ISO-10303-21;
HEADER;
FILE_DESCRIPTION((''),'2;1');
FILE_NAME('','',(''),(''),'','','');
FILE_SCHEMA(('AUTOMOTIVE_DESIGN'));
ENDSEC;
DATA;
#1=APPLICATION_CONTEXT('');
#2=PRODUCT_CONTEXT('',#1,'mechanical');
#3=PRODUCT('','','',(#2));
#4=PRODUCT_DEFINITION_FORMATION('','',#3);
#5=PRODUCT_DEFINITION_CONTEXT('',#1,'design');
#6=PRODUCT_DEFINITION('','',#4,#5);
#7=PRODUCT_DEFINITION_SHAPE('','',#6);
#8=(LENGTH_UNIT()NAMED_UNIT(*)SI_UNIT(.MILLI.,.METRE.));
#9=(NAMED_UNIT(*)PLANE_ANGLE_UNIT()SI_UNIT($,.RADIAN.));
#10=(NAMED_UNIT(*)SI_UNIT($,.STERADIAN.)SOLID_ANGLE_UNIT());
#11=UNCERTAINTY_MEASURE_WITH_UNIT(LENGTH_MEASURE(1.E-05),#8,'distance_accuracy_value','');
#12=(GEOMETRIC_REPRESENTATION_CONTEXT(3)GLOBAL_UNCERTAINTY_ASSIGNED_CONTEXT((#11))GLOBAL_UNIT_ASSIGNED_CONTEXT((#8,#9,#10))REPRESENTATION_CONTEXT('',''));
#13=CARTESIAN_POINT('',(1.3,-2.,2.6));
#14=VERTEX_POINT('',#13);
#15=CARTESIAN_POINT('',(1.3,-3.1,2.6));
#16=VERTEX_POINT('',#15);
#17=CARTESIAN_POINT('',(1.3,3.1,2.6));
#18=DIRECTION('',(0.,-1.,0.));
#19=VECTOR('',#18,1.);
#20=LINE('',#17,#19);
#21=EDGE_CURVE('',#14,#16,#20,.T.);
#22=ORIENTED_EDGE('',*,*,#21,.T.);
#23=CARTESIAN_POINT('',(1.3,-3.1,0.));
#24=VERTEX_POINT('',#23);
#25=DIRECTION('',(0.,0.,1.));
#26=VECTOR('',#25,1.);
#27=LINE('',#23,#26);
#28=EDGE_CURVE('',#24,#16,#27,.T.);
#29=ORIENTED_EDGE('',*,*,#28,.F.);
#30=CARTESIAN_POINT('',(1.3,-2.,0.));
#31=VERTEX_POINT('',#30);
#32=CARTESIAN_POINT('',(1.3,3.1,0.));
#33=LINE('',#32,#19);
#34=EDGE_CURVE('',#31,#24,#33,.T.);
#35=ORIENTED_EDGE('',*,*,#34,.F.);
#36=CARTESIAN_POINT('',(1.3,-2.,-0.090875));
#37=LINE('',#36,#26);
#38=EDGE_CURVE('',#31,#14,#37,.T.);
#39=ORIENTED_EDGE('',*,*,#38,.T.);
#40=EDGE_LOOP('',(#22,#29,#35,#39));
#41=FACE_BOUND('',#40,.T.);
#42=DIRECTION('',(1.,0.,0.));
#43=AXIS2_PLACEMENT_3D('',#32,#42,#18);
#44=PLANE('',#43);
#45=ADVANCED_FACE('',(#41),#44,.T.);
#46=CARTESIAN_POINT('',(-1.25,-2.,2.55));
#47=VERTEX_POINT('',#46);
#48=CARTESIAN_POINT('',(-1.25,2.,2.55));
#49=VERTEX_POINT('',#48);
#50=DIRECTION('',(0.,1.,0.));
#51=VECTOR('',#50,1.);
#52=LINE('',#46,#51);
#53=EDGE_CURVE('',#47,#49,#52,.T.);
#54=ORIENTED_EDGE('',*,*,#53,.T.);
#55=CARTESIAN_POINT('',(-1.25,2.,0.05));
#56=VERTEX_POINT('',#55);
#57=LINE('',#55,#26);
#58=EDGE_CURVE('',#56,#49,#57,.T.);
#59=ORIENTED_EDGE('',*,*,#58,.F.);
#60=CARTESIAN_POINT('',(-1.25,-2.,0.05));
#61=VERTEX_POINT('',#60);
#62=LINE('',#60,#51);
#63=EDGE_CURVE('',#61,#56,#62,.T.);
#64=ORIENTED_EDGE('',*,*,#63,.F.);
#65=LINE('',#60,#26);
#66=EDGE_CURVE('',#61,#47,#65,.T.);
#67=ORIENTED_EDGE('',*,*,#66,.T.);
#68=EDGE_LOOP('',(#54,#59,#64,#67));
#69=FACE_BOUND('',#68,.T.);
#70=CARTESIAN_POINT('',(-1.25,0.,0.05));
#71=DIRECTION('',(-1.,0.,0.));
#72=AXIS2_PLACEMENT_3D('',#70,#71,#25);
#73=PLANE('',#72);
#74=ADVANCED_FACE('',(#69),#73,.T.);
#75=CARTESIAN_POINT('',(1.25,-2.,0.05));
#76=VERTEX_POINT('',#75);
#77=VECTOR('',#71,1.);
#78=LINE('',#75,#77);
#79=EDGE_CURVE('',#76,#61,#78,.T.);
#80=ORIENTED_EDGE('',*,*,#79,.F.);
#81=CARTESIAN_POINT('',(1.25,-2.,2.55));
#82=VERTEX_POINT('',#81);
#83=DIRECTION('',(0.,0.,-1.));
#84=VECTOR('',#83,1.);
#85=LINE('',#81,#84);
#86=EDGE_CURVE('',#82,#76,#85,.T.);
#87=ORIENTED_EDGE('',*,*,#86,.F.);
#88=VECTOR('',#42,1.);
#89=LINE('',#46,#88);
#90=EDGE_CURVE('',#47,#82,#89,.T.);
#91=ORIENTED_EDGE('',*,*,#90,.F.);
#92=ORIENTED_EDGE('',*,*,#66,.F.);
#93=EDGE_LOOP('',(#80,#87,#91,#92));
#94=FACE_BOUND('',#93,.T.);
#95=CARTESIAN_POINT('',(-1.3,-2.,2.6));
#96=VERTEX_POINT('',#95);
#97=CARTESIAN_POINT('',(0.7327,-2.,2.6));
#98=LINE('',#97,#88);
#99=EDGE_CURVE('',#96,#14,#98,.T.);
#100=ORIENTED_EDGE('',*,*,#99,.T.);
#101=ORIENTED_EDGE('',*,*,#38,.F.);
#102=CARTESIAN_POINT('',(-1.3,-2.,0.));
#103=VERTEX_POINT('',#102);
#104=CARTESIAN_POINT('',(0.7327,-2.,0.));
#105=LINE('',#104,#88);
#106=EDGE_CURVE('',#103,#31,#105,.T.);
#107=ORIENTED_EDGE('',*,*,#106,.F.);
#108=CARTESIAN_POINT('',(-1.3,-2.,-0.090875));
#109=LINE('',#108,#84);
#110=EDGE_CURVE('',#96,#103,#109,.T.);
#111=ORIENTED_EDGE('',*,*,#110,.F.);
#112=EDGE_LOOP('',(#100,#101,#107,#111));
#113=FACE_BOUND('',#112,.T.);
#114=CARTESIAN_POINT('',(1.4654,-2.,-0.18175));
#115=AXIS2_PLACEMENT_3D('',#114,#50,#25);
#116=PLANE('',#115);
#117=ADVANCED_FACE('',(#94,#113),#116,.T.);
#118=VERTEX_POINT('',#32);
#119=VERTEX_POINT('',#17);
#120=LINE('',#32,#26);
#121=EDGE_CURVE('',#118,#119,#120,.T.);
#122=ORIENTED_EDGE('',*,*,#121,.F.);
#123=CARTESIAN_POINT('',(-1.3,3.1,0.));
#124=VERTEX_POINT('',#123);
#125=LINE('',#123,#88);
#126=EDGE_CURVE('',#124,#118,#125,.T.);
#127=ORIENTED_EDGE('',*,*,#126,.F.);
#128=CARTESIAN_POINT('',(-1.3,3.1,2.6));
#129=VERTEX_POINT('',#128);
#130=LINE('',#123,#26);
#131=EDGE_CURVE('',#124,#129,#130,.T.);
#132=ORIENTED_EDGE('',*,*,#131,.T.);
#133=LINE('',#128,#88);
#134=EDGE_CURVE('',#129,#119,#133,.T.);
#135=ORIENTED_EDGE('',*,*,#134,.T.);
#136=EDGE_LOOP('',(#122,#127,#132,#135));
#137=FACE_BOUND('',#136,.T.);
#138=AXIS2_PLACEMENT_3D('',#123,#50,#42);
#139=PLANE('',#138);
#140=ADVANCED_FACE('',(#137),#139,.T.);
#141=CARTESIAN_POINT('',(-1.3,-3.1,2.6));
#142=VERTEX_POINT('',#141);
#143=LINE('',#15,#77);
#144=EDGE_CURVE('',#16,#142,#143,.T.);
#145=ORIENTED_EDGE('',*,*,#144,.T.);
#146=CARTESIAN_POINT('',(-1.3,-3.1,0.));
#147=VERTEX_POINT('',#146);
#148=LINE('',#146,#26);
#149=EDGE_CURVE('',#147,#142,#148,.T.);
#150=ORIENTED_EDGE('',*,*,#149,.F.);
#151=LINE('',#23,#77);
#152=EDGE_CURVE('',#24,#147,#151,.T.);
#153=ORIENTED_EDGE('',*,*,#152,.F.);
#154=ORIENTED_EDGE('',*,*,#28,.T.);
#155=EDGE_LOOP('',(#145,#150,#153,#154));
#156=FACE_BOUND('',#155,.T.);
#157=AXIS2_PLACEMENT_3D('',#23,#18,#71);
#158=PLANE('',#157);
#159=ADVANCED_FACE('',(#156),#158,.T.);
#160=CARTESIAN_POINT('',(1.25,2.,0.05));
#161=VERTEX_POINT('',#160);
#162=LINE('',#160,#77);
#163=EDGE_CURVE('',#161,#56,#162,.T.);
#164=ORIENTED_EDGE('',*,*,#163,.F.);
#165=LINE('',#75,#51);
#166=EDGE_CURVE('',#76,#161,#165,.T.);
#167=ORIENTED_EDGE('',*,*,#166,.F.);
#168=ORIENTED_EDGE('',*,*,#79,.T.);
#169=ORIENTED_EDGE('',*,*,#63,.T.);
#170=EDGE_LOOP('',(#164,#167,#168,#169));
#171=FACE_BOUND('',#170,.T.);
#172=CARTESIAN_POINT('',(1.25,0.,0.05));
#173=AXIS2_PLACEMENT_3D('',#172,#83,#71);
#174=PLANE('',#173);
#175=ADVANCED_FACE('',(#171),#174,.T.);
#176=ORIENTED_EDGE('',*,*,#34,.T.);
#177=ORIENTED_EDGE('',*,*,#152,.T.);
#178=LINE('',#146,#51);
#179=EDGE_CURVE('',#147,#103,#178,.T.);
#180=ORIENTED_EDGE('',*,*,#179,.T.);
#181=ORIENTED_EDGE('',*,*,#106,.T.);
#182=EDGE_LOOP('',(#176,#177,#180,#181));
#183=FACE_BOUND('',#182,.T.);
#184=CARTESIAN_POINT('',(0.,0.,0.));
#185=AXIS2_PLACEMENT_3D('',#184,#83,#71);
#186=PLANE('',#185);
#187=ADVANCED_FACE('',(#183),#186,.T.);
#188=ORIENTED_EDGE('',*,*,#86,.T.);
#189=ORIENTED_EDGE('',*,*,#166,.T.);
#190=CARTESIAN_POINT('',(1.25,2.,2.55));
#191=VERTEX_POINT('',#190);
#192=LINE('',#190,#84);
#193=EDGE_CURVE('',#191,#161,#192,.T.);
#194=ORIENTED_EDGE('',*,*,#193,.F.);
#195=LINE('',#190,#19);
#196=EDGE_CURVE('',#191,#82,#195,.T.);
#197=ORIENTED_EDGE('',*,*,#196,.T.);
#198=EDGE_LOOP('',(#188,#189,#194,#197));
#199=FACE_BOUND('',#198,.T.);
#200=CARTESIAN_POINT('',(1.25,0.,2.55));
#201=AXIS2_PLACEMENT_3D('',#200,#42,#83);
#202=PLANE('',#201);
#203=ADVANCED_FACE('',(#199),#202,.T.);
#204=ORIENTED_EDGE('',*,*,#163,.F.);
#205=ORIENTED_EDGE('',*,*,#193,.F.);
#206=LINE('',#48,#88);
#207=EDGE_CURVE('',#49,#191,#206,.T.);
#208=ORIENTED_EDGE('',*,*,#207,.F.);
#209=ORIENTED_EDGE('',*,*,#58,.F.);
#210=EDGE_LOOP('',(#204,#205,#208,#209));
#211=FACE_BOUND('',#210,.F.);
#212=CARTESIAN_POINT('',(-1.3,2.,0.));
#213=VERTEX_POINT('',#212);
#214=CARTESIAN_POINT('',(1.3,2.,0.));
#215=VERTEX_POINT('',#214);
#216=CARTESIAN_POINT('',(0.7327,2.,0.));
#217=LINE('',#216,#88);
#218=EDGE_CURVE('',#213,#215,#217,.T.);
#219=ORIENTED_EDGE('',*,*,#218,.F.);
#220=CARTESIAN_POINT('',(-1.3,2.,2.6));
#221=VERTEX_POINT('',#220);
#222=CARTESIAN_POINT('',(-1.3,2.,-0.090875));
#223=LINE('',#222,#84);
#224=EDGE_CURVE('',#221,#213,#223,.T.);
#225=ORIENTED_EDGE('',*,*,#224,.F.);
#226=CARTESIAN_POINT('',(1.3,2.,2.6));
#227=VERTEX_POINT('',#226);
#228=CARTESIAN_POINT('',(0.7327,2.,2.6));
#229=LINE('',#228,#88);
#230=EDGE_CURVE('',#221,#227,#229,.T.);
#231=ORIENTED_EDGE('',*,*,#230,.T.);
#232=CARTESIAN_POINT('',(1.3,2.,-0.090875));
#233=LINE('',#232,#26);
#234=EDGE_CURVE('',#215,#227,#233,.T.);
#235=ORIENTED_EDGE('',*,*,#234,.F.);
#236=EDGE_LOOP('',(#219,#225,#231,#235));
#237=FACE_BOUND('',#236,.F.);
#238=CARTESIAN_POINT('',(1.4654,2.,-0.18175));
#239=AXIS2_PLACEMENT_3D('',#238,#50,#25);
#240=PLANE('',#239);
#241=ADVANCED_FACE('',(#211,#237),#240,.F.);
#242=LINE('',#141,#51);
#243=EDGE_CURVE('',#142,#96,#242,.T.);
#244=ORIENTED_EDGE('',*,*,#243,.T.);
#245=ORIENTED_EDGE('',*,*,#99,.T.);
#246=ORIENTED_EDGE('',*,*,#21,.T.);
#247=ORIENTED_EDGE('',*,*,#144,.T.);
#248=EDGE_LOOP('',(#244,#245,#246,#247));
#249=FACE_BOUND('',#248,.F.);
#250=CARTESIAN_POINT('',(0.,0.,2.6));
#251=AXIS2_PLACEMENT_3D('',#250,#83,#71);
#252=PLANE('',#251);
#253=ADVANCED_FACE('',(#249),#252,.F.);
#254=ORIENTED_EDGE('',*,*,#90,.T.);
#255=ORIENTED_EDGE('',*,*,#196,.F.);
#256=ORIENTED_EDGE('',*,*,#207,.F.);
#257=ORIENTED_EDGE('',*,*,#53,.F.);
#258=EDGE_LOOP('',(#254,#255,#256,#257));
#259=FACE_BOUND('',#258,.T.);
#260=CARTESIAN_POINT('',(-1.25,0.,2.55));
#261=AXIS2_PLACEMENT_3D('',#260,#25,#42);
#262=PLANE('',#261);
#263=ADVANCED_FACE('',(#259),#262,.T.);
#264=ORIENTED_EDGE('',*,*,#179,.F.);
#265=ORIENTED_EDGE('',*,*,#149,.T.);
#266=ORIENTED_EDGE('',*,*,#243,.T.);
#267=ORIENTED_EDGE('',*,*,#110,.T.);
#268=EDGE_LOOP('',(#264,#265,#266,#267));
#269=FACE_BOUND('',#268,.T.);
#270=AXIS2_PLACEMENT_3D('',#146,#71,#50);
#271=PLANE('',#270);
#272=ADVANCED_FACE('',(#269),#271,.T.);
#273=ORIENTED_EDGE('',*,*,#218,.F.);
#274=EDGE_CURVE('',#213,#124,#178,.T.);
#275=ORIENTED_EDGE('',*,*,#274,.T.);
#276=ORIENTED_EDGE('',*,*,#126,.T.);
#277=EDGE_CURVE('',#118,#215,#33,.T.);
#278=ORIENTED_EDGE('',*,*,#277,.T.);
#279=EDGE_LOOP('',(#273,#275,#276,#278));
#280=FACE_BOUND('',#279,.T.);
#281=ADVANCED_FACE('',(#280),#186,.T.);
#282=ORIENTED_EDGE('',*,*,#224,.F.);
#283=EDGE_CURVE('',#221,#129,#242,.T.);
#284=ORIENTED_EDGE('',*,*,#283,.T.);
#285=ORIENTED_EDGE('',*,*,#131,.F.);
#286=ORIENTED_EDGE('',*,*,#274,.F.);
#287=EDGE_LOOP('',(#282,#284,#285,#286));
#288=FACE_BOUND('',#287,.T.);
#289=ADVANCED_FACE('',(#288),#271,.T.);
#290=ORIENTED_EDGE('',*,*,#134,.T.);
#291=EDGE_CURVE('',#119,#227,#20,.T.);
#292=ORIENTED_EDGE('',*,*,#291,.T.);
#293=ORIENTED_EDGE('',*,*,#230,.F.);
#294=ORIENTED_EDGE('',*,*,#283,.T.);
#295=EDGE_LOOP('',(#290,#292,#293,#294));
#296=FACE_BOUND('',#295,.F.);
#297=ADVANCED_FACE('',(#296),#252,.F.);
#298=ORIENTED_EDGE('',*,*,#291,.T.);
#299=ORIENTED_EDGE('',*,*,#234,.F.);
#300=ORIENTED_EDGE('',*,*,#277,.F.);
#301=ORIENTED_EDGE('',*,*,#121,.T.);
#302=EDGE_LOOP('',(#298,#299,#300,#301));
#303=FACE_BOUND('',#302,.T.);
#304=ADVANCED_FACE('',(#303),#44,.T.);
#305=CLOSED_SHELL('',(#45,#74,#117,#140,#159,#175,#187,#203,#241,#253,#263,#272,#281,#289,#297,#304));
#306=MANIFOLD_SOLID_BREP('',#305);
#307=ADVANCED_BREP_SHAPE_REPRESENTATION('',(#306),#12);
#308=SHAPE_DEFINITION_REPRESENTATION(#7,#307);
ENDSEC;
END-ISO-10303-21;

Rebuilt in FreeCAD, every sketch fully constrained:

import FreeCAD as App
import Part
import Sketcher

V = App.Vector
Q = App.Units.Quantity


def add_polygon(sketch, points):
    """Adds a closed chain of lines whose ends are joined by coincident constraints."""
    first, n = sketch.GeometryCount, len(points)
    for a, b in zip(points, points[1:] + points[:1]):
        sketch.addGeometry(Part.LineSegment(App.Vector(*a, 0), App.Vector(*b, 0)), False)
    for i in range(n):
        sketch.addConstraint(Sketcher.Constraint("Coincident", first + i, 2, first + (i + 1) % n, 1))

doc = App.newDocument("Part")
params = doc.addObject("Spreadsheet::Sheet", "Params")
for row, (alias, value) in enumerate([
    ("sketch1_height", "6.2 mm"),
    ("pad1_length", "2.6 mm"),
    ("sketch2_height", "6.54 mm"),
    ("pocket1_length", "4 mm"),
], start=1):
    params.set(f"A{row}", alias)
    params.set(f"B{row}", "=" + value)
    params.setAlias(f"B{row}", alias)

body = doc.addObject("PartDesign::Body", "Body")

# Sketch on XY plane
sketch1 = body.newObject("Sketcher::SketchObject", "Sketch")
sketch1.AttachmentSupport = (doc.getObject("XY_Plane"), [""])
sketch1.MapMode = "FlatFace"
add_polygon(sketch1, [(-1.3, -3.1), (1.3, -3.1), (1.3, 3.1), (-1.3, 3.1)])  # lines 0-3
sketch1.addConstraint([
    Sketcher.Constraint("Horizontal", 0),
    Sketcher.Constraint("Vertical", 1),
    Sketcher.Constraint("Horizontal", 2),
    Sketcher.Constraint("Vertical", 3),
    Sketcher.Constraint("Symmetric", 0, 2, 2, 2, -1, 1),
    Sketcher.Constraint("DistanceX", -1, 1, 0, 2, Q("1.3 mm")),
    Sketcher.Constraint("DistanceY", 1, 1, 1, 2, Q("6.2 mm")),
])
sketch1.setExpression("Constraints[10]", "Params.sketch1_height")
pad1 = body.newObject("PartDesign::Pad", "Pad")
pad1.Profile = sketch1
pad1.setExpression("Length", "Params.pad1_length")

# Sketch on XZ plane
sketch2 = body.newObject("Sketcher::SketchObject", "Sketch001")
sketch2.AttachmentSupport = (doc.getObject("XZ_Plane"), [""])
sketch2.MapMode = "FlatFace"
add_polygon(sketch2, [(-2.2441, -3.4518), (5.1749, -3.4518), (5.1749, 3.0883), (-2.2441, 3.0883)])  # lines 0-3
add_polygon(sketch2, [(1.25, 2.55), (1.25, 0.05), (-1.25, 0.05), (-1.25, 2.55)])  # lines 4-7
sketch2.addConstraint([
    Sketcher.Constraint("Horizontal", 0),
    Sketcher.Constraint("Vertical", 1),
    Sketcher.Constraint("Horizontal", 2),
    Sketcher.Constraint("Vertical", 3),
    Sketcher.Constraint("Vertical", 4),
    Sketcher.Constraint("Horizontal", 5),
    Sketcher.Constraint("Vertical", 6),
    Sketcher.Constraint("Horizontal", 7),
    Sketcher.Constraint("Equal", 7, 4),
    Sketcher.Constraint("DistanceX", -1, 1, 4, 2, Q("1.25 mm")),
    Sketcher.Constraint("DistanceX", 5, 2, -1, 1, Q("1.25 mm")),
    Sketcher.Constraint("DistanceY", 1, 1, 1, 2, Q("6.54 mm")),
    Sketcher.Constraint("DistanceX", 0, 1, 0, 2, Q("7.419 mm")),
    Sketcher.Constraint("DistanceY", -1, 1, 4, 2, Q("0.05 mm")),
    Sketcher.Constraint("DistanceX", -1, 1, 0, 2, Q("5.175 mm")),
    Sketcher.Constraint("DistanceY", 0, 2, -1, 1, Q("3.4518 mm")),
])
sketch2.setExpression("Constraints[19]", "Params.sketch2_height")
pocket1 = body.newObject("PartDesign::Pocket", "Pocket")
pocket1.Profile = sketch2
pocket1.setExpression("Length", "Params.pocket1_length")
pocket1.Midplane = True

doc.recompute()
